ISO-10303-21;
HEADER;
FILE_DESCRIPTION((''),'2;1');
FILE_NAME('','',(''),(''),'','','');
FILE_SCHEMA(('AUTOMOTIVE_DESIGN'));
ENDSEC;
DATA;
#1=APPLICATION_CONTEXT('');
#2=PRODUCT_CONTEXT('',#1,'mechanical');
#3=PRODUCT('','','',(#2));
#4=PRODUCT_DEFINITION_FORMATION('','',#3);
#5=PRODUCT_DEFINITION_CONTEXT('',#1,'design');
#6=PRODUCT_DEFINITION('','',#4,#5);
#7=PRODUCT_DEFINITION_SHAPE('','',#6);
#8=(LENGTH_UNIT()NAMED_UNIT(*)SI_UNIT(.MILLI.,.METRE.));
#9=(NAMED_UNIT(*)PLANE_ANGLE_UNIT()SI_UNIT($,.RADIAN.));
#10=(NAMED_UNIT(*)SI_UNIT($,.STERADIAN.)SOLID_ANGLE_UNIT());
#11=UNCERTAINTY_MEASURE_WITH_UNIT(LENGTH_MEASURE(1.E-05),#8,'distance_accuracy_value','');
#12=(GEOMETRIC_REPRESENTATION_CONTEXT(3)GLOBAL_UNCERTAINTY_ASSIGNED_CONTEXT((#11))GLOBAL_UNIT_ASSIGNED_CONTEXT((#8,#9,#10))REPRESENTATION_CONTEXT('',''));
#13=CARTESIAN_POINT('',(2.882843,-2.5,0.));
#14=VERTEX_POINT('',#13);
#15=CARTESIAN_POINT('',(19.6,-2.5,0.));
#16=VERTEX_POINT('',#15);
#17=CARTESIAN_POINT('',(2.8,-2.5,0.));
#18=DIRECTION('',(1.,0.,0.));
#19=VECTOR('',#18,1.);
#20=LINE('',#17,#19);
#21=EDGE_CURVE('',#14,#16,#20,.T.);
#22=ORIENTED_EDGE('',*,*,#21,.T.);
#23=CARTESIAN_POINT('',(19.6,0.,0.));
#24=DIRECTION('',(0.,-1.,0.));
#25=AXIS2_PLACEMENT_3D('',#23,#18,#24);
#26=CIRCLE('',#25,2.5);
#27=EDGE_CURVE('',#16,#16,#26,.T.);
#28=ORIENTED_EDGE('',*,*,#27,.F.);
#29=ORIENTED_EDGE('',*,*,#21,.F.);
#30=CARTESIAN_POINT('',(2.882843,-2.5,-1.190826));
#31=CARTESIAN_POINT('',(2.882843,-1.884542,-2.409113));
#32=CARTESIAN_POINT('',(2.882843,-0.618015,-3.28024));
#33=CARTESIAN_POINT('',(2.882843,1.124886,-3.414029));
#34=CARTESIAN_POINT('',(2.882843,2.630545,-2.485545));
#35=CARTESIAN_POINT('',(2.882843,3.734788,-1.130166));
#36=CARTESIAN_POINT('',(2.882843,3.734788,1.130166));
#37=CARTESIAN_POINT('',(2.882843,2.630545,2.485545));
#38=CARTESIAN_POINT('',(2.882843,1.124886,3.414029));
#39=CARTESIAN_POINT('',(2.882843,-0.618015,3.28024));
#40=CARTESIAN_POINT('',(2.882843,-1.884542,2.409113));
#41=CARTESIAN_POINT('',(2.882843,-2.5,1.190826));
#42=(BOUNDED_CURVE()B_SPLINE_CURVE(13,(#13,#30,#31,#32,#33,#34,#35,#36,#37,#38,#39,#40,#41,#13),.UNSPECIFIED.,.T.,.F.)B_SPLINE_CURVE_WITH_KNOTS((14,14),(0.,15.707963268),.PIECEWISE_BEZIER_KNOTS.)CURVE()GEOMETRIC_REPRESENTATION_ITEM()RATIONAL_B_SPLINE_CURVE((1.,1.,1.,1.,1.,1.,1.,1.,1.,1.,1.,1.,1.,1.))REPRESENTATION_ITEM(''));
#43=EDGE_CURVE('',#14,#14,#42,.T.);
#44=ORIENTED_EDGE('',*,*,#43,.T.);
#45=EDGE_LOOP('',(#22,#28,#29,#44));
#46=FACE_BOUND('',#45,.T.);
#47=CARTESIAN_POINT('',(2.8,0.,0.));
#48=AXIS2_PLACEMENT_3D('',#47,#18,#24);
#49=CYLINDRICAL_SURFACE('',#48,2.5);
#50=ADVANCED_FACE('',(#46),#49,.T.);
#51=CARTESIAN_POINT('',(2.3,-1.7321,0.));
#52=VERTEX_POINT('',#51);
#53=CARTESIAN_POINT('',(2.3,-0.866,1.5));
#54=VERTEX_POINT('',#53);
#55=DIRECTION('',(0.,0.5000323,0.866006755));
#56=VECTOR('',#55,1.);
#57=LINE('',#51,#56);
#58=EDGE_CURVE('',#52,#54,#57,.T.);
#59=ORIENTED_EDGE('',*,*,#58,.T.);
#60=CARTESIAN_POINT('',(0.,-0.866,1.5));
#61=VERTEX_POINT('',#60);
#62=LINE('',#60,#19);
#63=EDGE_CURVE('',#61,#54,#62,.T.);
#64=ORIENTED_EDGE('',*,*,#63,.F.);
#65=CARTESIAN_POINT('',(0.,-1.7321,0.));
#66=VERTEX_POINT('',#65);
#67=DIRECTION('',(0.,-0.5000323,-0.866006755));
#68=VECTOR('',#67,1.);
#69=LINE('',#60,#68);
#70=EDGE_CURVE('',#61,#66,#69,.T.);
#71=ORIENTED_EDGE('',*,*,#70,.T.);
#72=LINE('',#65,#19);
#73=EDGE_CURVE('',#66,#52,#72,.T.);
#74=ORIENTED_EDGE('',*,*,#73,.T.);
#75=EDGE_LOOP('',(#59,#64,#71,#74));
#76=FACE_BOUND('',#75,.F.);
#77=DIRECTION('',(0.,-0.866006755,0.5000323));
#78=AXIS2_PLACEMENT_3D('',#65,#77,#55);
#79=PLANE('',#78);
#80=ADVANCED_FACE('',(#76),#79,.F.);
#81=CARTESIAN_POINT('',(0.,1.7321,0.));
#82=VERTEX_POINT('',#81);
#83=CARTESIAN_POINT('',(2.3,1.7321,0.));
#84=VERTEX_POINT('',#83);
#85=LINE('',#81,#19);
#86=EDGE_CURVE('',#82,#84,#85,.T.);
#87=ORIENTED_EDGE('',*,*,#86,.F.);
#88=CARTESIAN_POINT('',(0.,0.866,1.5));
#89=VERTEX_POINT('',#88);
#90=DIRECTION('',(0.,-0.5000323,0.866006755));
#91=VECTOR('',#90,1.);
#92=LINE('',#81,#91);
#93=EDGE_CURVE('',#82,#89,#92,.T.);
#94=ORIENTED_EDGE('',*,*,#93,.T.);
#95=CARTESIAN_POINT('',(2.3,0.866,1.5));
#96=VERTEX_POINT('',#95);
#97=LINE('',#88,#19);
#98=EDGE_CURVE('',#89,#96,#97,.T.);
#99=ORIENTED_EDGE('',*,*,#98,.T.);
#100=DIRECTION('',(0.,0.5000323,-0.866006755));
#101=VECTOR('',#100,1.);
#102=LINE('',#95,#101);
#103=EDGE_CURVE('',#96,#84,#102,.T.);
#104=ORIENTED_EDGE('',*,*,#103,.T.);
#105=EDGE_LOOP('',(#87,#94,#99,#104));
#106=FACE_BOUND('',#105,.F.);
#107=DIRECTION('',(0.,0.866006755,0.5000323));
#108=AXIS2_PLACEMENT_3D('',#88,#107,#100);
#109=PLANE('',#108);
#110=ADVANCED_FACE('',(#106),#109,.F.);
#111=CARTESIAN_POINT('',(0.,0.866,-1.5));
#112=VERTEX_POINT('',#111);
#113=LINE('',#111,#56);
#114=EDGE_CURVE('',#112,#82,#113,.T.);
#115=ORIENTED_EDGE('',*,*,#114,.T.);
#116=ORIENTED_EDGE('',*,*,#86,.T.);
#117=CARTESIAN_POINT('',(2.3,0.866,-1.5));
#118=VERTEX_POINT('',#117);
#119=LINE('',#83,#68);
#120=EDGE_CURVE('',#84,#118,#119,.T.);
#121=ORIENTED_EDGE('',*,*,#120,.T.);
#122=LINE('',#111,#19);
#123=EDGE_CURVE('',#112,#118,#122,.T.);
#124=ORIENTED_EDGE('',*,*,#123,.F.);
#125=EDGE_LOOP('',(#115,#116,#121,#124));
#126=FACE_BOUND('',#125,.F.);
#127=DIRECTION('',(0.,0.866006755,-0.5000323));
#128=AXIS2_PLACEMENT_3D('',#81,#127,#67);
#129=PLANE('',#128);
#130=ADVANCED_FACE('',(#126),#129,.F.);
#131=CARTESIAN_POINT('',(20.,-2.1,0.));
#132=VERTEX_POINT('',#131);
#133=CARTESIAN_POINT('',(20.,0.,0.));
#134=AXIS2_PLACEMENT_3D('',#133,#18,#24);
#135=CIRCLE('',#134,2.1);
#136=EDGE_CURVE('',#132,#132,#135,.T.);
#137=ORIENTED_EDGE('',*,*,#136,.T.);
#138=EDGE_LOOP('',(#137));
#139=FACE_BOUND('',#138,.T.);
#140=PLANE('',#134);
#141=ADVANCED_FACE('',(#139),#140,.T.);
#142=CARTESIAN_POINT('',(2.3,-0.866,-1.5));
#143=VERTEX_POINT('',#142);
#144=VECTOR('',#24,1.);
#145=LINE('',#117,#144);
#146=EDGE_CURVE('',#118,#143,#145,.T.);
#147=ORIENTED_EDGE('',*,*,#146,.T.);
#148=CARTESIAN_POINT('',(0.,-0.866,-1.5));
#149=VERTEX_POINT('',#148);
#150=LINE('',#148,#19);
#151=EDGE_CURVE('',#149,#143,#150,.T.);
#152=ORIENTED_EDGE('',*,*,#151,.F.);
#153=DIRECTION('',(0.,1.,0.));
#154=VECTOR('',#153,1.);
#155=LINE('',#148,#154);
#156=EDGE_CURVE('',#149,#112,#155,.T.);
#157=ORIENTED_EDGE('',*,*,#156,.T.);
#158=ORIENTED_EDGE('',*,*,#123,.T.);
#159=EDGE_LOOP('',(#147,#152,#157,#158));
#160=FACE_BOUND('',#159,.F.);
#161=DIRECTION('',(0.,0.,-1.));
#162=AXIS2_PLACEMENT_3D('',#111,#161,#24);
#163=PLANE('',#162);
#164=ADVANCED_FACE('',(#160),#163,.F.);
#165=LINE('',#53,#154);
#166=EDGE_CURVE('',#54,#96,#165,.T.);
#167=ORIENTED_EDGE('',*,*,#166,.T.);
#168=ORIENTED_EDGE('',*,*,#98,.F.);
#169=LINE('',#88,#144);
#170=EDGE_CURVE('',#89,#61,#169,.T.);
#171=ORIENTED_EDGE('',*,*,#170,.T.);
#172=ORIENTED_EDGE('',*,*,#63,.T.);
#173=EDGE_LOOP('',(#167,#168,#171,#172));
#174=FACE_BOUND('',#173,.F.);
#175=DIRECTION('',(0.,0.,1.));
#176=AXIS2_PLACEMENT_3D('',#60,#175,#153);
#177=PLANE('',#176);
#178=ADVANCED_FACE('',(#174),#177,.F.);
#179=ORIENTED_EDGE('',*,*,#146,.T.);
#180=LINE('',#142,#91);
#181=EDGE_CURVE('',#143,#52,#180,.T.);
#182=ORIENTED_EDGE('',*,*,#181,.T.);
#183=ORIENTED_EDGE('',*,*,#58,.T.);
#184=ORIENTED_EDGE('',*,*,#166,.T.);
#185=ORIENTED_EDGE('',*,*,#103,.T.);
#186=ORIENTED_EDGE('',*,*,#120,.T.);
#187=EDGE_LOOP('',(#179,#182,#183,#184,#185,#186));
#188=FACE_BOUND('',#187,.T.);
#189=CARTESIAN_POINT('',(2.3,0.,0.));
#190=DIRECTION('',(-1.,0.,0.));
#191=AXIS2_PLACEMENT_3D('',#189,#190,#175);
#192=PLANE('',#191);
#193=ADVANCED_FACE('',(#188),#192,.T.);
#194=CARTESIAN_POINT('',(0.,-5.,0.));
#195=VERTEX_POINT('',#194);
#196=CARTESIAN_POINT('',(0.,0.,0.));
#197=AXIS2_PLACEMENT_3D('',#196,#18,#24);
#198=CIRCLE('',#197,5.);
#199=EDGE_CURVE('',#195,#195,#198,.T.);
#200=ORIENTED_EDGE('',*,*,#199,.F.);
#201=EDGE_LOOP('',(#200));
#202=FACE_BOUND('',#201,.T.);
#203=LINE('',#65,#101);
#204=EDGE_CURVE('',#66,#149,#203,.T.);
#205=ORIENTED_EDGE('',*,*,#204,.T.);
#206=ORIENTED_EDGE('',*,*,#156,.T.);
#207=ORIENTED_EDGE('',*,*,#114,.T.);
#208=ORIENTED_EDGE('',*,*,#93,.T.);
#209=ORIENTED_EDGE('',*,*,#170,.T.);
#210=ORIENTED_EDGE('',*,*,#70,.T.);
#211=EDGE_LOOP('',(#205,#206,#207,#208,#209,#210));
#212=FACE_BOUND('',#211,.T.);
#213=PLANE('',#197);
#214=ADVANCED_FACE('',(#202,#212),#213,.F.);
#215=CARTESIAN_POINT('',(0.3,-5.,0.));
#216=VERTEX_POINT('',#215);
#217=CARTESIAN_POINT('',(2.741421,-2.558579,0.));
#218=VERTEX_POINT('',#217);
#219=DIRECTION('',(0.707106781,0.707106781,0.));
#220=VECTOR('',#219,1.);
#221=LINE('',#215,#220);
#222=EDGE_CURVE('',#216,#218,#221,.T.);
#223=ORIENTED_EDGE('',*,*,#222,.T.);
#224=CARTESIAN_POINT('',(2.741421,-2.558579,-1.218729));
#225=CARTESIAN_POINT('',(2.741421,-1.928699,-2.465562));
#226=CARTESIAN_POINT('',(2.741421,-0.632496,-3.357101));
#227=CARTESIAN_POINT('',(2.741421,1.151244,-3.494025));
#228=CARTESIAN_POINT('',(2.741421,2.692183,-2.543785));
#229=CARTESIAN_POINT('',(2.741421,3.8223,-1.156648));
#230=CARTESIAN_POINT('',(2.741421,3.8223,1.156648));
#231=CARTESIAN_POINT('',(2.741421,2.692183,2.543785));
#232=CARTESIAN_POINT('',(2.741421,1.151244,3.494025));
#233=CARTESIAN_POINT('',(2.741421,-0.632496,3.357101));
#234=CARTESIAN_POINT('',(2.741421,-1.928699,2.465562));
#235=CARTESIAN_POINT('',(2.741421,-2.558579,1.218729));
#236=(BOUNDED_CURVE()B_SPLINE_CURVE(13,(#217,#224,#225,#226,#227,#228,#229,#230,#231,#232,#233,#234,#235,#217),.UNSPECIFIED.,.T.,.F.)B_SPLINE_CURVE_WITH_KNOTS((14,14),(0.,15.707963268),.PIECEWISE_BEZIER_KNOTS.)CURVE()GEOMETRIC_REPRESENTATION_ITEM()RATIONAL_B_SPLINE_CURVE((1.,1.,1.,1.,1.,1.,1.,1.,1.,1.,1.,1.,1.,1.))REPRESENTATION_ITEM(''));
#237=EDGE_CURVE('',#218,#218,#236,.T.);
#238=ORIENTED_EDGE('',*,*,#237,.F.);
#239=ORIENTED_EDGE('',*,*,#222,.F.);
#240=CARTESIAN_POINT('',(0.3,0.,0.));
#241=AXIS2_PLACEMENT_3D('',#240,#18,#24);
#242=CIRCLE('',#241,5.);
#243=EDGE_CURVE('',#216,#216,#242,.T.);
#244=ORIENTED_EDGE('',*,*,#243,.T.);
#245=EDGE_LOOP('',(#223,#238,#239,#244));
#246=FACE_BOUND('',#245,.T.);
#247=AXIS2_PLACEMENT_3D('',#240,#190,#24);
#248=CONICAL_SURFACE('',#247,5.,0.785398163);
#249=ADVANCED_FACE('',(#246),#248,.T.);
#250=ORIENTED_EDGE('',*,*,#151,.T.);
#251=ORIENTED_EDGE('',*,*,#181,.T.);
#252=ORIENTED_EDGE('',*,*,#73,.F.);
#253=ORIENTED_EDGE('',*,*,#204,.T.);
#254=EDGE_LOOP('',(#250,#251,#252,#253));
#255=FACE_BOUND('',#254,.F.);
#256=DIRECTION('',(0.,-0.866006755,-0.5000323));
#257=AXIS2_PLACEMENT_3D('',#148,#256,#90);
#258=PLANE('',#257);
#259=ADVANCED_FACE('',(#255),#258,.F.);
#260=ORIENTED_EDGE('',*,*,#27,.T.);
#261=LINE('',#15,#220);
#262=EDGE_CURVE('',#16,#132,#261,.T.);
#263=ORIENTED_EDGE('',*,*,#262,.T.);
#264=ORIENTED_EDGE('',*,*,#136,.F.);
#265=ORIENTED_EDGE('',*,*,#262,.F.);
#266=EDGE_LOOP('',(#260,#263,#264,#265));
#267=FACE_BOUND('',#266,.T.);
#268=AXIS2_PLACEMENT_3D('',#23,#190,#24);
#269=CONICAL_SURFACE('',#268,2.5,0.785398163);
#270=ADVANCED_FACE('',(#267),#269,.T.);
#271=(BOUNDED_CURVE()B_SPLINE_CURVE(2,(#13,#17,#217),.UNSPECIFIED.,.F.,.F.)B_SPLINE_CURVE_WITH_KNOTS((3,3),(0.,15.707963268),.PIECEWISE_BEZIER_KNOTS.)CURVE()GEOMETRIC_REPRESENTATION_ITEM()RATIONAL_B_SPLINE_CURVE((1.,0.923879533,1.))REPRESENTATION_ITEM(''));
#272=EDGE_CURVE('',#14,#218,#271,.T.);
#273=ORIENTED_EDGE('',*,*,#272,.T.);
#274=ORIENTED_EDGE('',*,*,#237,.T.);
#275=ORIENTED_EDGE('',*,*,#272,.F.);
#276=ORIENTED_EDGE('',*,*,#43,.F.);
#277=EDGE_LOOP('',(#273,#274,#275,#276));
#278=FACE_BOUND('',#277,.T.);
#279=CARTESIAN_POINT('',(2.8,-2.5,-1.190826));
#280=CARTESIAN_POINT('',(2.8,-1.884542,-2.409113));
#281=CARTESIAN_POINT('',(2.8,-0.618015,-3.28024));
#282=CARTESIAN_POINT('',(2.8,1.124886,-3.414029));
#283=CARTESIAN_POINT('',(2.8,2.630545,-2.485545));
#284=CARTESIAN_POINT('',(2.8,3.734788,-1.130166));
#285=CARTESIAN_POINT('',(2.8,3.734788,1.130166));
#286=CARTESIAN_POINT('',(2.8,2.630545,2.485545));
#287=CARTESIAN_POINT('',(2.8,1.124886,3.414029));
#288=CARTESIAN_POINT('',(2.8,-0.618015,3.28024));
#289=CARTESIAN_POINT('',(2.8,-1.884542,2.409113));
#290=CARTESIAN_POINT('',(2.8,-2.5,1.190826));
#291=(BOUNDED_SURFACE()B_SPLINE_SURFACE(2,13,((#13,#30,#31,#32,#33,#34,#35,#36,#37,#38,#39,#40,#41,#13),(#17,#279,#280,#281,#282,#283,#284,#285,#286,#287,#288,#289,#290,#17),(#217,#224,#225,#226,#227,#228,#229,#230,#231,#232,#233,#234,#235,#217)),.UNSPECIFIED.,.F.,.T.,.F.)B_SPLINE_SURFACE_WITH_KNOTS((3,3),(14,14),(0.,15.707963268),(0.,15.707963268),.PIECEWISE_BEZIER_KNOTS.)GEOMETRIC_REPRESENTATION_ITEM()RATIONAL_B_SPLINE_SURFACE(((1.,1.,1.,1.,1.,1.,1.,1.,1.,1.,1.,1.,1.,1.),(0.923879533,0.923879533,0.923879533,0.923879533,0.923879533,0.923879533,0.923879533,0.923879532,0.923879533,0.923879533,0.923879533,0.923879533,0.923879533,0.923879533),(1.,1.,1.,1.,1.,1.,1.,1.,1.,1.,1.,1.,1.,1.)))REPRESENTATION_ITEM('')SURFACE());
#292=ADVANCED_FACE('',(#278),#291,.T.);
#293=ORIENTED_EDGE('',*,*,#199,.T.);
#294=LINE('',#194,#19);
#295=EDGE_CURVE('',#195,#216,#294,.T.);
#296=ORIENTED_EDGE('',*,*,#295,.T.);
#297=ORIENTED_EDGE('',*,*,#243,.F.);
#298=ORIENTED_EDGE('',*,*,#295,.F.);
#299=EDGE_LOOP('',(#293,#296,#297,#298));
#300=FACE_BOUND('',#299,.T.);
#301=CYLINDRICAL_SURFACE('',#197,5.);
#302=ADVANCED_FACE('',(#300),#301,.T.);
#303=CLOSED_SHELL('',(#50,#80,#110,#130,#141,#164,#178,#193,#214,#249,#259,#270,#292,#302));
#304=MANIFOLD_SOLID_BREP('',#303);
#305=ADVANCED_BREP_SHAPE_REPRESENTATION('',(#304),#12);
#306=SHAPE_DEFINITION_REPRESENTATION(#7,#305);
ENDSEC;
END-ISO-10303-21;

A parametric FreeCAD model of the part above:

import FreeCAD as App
import Part
import Sketcher
from FreeCAD import Vector
Q = App.Units.Quantity


def edges_at(feature, points):
    """Names of the edges that pass closest to the given points."""
    edges = feature.Shape.Edges
    near = lambda p: min(range(len(edges)), key=lambda i: edges[i].distToShape(Part.Vertex(*p))[0])
    return sorted({f"Edge{near(p) + 1}" for p in points})

doc = App.newDocument("Part")
body = doc.addObject("PartDesign::Body", "Body")

sketch1 = body.newObject("Sketcher::SketchObject", "Sketch")
sketch1.AttachmentSupport = (doc.getObject("XY_Plane"), [""])
sketch1.MapMode = "FlatFace"
sketch1.addGeometry([
    Part.LineSegment(Vector(2.8, -2.5, 0), Vector(20, -2.5, 0)),
    Part.LineSegment(Vector(20, -2.5, 0), Vector(20, 0, 0)),
    Part.LineSegment(Vector(20, 0, 0), Vector(0, 0, 0)),
    Part.LineSegment(Vector(0, 0, 0), Vector(0, -5, 0)),
    Part.LineSegment(Vector(0, -5, 0), Vector(0.3, -5, 0)),
    Part.LineSegment(Vector(0.3, -5, 0), Vector(2.8, -2.5, 0)),
], False)
sketch1.addConstraint([
    Sketcher.Constraint("Coincident", 0, 2, 1, 1),
    Sketcher.Constraint("Coincident", 1, 2, 2, 1),
    Sketcher.Constraint("Coincident", 2, 2, 3, 1),
    Sketcher.Constraint("Coincident", 3, 2, 4, 1),
    Sketcher.Constraint("Coincident", 4, 2, 5, 1),
    Sketcher.Constraint("Coincident", 5, 2, 0, 1),
    Sketcher.Constraint("Horizontal", 0),
    Sketcher.Constraint("Vertical", 1),
    Sketcher.Constraint("Horizontal", 2),
    Sketcher.Constraint("Vertical", 3),
    Sketcher.Constraint("Horizontal", 4),
    Sketcher.Constraint("Coincident", 2, 2, -1, 1),
    Sketcher.Constraint("DistanceX", 2, 2, 2, 1, Q("20 mm")),
    Sketcher.Constraint("DistanceY", 3, 2, 3, 1, Q("5 mm")),
    Sketcher.Constraint("Angle", 5, Q("45 deg")),
    Sketcher.Constraint("DistanceX", 4, 1, 4, 2, Q("0.3 mm")),
    Sketcher.Constraint("DistanceY", 1, 1, 1, 2, Q("2.5 mm")),
])
revolution = body.newObject("PartDesign::Revolution", "Revolution")
revolution.Profile = sketch1
revolution.ReferenceAxis = (sketch1, ["H_Axis"])
revolution.Angle = 360

sketch2 = body.newObject("Sketcher::SketchObject", "Sketch001")
sketch2.AttachmentSupport = (doc.getObject("YZ_Plane"), [""])
sketch2.MapMode = "FlatFace"
sketch2.addGeometry([
    Part.LineSegment(Vector(1.7, 0, 0), Vector(0.9, -1.5, 0)),
    Part.LineSegment(Vector(0.9, -1.5, 0), Vector(-0.9, -1.5, 0)),
    Part.LineSegment(Vector(-0.9, -1.5, 0), Vector(-1.7, 0, 0)),
    Part.LineSegment(Vector(-1.7, 0, 0), Vector(-0.9, 1.5, 0)),
    Part.LineSegment(Vector(-0.9, 1.5, 0), Vector(0.9, 1.5, 0)),
    Part.LineSegment(Vector(0.9, 1.5, 0), Vector(1.7, 0, 0)),
], False)
sketch2.addConstraint([
    Sketcher.Constraint("Coincident", 0, 2, 1, 1),
    Sketcher.Constraint("Coincident", 1, 2, 2, 1),
    Sketcher.Constraint("Coincident", 2, 2, 3, 1),
    Sketcher.Constraint("Coincident", 3, 2, 4, 1),
    Sketcher.Constraint("Coincident", 4, 2, 5, 1),
    Sketcher.Constraint("Coincident", 5, 2, 0, 1),
    Sketcher.Constraint("Horizontal", 1),
    Sketcher.Constraint("Horizontal", 4),
    Sketcher.Constraint("Symmetric", 0, 2, 3, 2, -1, 1),
    Sketcher.Constraint("Symmetric", 2, 2, 5, 2, -1, 1),
    Sketcher.Constraint("PointOnObject", 2, 2, -1),
    Sketcher.Constraint("Parallel", 2, 5),
    Sketcher.Constraint("Vertical", 1, 2, 3, 2),
    Sketcher.Constraint("DistanceY", 1, 2, 3, 2, Q("3 mm")),
    Sketcher.Constraint("DistanceX", 1, 2, 1, 1, Q("1.732 mm")),
    Sketcher.Constraint("Distance", 0, Q("1.732 mm")),
])
pocket1 = body.newObject("PartDesign::Pocket", "Pocket")
pocket1.Profile = sketch2
pocket1.Length = 2.3
pocket1.Reversed = True
doc.recompute()

fillet = body.newObject("PartDesign::Fillet", "Fillet")
fillet.Base = (pocket1, edges_at(pocket1, [(2.8, 2.5, 0)]))
fillet.Radius = 0.2
doc.recompute()

chamfer = body.newObject("PartDesign::Chamfer", "Chamfer")
chamfer.Base = (fillet, edges_at(fillet, [(20, 2.5, 0)]))
chamfer.Size = 0.4

doc.recompute()
